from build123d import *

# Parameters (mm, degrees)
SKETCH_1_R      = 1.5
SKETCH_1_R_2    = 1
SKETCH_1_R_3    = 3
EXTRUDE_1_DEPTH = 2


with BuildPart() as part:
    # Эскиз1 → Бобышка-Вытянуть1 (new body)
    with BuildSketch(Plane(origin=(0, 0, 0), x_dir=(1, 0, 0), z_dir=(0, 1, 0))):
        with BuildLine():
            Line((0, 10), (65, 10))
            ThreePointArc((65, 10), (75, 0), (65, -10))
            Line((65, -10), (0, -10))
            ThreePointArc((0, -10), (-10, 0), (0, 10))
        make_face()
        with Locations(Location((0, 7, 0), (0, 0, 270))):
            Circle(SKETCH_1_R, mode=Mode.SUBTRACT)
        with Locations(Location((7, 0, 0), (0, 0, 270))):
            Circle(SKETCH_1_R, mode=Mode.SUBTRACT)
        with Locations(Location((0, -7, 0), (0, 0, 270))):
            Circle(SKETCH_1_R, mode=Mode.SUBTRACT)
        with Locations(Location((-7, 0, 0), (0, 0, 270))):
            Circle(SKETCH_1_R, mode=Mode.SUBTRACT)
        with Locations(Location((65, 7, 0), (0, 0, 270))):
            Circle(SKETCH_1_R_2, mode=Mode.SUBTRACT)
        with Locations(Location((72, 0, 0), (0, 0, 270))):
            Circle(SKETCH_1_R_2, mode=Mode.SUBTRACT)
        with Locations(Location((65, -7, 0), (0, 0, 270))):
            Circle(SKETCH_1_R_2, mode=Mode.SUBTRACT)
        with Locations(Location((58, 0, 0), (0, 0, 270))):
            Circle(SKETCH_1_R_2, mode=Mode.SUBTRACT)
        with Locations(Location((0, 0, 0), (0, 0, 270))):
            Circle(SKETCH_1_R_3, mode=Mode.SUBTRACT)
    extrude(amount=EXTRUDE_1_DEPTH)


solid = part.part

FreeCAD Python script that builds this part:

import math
import FreeCAD as App
import Part
import Sketcher
from FreeCAD import Vector
Q = App.Units.Quantity

doc = App.newDocument("Part")
body = doc.addObject("PartDesign::Body", "Body")

# Sketch on XZ plane
sketch1 = body.newObject("Sketcher::SketchObject", "Sketch")
sketch1.AttachmentSupport = (doc.getObject("XZ_Plane"), [""])
sketch1.MapMode = "FlatFace"
sketch1.addGeometry(Part.LineSegment(Vector(65, -10, 0), Vector(0, -10, 0)), False)
sketch1.addGeometry(Part.ArcOfCircle(Part.Circle(Vector(0, 0, 0), Vector(0, 0, 1), 10), math.radians(90), math.radians(270)), False)
sketch1.addGeometry(Part.LineSegment(Vector(0, 10, 0), Vector(65, 10, 0)), False)
sketch1.addGeometry(Part.ArcOfCircle(Part.Circle(Vector(65, 0, 0), Vector(0, 0, 1), 10), math.radians(-90), math.radians(90)), False)
sketch1.addGeometry(Part.Circle(Vector(65, 7, 0), Vector(0, 0, 1), 1), False)
sketch1.addGeometry(Part.Circle(Vector(0, 7, 0), Vector(0, 0, 1), 1.5), False)
sketch1.addGeometry(Part.Circle(Vector(72, 0, 0), Vector(0, 0, 1), 1), False)
sketch1.addGeometry(Part.Circle(Vector(58, 0, 0), Vector(0, 0, 1), 1), False)
sketch1.addGeometry(Part.Circle(Vector(65, -7, 0), Vector(0, 0, 1), 1), False)
sketch1.addGeometry(Part.Circle(Vector(7, 0, 0), Vector(0, 0, 1), 1.5), False)
sketch1.addGeometry(Part.Circle(Vector(0, 0, 0), Vector(0, 0, 1), 3), False)
sketch1.addGeometry(Part.Circle(Vector(-7, 0, 0), Vector(0, 0, 1), 1.5), False)
sketch1.addGeometry(Part.Circle(Vector(0, -7, 0), Vector(0, 0, 1), 1.5), False)
sketch1.addConstraint(Sketcher.Constraint("Tangent", 0, 2, 1, 2))
sketch1.addConstraint(Sketcher.Constraint("Tangent", 1, 1, 2, 1))
sketch1.addConstraint(Sketcher.Constraint("Tangent", 2, 2, 3, 2))
sketch1.addConstraint(Sketcher.Constraint("Tangent", 3, 1, 0, 1))
sketch1.addConstraint(Sketcher.Constraint("Horizontal", 0))
sketch1.addConstraint(Sketcher.Constraint("Horizontal", 2))
sketch1.addConstraint(Sketcher.Constraint("Coincident", 1, 3, -1, 1))
sketch1.addConstraint(Sketcher.Constraint("Coincident", 10, 3, -1, 1))
sketch1.addConstraint(Sketcher.Constraint("Equal", 4, 6))
sketch1.addConstraint(Sketcher.Constraint("Equal", 6, 7))
sketch1.addConstraint(Sketcher.Constraint("Equal", 7, 8))
sketch1.addConstraint(Sketcher.Constraint("Equal", 5, 9))
sketch1.addConstraint(Sketcher.Constraint("Equal", 9, 11))
sketch1.addConstraint(Sketcher.Constraint("Equal", 11, 12))
sketch1.addConstraint(Sketcher.Constraint("Symmetric", 9, 3, 11, 3, -1, 1))
sketch1.addConstraint(Sketcher.Constraint("Symmetric", 5, 3, 12, 3, -1, 1))
sketch1.addConstraint(Sketcher.Constraint("Symmetric", 4, 3, 8, 3, -1))
sketch1.addConstraint(Sketcher.Constraint("PointOnObject", 5, 3, -2))
sketch1.addConstraint(Sketcher.Constraint("PointOnObject", 6, 3, -1))
sketch1.addConstraint(Sketcher.Constraint("PointOnObject", 7, 3, -1))
sketch1.addConstraint(Sketcher.Constraint("PointOnObject", 9, 3, -1))
sketch1.addConstraint(Sketcher.Constraint("Horizontal", 4, 3, 5, 3))
sketch1.addConstraint(Sketcher.Constraint("Vertical", 3, 3, 4, 3))
sketch1.addConstraint(Sketcher.Constraint("Diameter", 4, Q("2 mm")))
sketch1.addConstraint(Sketcher.Constraint("Diameter", 5, Q("3 mm")))
sketch1.addConstraint(Sketcher.Constraint("Diameter", 10, Q("6 mm")))
sketch1.addConstraint(Sketcher.Constraint("Radius", 1, Q("10 mm")))
sketch1.addConstraint(Sketcher.Constraint("DistanceX", 0, 2, 0, 1, Q("65 mm")))
sketch1.addConstraint(Sketcher.Constraint("DistanceY", -1, 1, 4, 3, Q("7 mm")))
sketch1.addConstraint(Sketcher.Constraint("DistanceX", -1, 1, 6, 3, Q("72 mm")))
sketch1.addConstraint(Sketcher.Constraint("DistanceX", -1, 1, 7, 3, Q("58 mm")))
sketch1.addConstraint(Sketcher.Constraint("DistanceX", -1, 1, 9, 3, Q("7 mm")))
pad1 = body.newObject("PartDesign::Pad", "Pad")
pad1.Profile = sketch1
pad1.Length = 2
pad1.Reversed = True

doc.recompute()
